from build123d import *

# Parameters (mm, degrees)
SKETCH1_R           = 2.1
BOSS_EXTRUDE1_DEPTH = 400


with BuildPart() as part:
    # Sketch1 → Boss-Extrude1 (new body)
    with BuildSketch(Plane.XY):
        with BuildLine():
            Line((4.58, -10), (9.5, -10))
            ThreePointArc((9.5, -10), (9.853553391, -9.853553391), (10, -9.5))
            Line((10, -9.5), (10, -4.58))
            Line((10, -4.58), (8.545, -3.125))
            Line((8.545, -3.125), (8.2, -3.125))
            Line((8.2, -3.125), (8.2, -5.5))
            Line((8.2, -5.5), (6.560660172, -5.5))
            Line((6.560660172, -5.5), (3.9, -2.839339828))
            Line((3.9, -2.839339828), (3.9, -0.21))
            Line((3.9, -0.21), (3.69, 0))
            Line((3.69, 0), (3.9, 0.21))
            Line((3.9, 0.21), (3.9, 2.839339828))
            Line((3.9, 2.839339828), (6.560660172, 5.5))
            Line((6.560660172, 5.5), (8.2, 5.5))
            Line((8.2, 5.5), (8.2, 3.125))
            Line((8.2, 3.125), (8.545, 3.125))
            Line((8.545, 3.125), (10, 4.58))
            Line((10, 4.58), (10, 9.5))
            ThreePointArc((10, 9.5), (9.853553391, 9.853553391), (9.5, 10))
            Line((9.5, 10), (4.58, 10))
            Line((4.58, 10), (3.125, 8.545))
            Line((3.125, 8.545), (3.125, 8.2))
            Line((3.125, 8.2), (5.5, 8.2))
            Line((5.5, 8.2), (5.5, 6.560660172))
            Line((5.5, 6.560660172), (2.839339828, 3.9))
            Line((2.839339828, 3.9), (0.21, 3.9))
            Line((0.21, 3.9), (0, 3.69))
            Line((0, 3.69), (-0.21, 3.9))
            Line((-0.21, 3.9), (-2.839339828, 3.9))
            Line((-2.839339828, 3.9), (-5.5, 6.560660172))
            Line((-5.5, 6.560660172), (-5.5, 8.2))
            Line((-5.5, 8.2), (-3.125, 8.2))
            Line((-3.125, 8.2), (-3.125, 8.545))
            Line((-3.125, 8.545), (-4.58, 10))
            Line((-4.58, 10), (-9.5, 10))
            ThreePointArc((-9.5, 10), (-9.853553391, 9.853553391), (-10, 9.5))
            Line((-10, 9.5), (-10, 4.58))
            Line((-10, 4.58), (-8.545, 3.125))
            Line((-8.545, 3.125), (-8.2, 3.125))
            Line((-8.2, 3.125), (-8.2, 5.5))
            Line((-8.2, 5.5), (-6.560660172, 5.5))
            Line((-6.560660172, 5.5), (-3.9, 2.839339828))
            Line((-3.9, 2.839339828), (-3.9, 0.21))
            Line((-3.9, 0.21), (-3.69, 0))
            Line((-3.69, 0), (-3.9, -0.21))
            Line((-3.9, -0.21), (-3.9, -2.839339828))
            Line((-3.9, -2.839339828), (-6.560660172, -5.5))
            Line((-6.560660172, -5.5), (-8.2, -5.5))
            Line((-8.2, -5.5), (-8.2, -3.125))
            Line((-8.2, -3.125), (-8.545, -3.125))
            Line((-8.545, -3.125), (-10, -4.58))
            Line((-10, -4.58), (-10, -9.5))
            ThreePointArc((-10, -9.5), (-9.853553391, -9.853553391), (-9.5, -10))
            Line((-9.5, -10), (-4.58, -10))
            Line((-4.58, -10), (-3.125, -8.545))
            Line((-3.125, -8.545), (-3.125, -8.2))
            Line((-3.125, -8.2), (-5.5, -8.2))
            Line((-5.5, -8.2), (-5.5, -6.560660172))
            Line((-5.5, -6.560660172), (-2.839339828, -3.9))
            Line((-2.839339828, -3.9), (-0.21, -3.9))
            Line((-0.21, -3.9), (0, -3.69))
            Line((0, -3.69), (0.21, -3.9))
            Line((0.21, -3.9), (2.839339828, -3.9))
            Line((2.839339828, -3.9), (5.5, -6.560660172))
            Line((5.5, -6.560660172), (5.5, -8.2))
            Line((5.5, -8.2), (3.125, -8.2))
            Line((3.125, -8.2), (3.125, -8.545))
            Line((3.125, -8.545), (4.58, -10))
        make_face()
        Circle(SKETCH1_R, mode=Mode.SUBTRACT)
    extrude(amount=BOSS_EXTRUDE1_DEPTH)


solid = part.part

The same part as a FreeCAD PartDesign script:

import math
import FreeCAD as App
import Part
import Sketcher
from FreeCAD import Vector
Q = App.Units.Quantity

doc = App.newDocument("Part")
body = doc.addObject("PartDesign::Body", "Body")

sketch1 = body.newObject("Sketcher::SketchObject", "Sketch")
sketch1.AttachmentSupport = (doc.getObject("XY_Plane"), [""])
sketch1.MapMode = "FlatFace"
sketch1.addGeometry(Part.LineSegment(Vector(4.58, -10, 0), Vector(9.5, -10, 0)), False)
sketch1.addGeometry(Part.ArcOfCircle(Part.Circle(Vector(9.5, -9.5, 0), Vector(0, 0, 1), 0.5), math.radians(-90), math.radians(0)), False)
sketch1.addGeometry(Part.LineSegment(Vector(10, -9.5, 0), Vector(10, -4.58, 0)), False)
sketch1.addGeometry(Part.LineSegment(Vector(10, -4.58, 0), Vector(8.54, -3.12, 0)), False)
sketch1.addGeometry(Part.LineSegment(Vector(8.54, -3.12, 0), Vector(8.2, -3.12, 0)), False)
sketch1.addGeometry(Part.LineSegment(Vector(8.2, -3.12, 0), Vector(8.2, -5.5, 0)), False)
sketch1.addGeometry(Part.LineSegment(Vector(8.2, -5.5, 0), Vector(6.56, -5.5, 0)), False)
sketch1.addGeometry(Part.LineSegment(Vector(6.56, -5.5, 0), Vector(3.9, -2.84, 0)), False)
sketch1.addGeometry(Part.LineSegment(Vector(3.9, -2.84, 0), Vector(3.9, -0.21, 0)), False)
sketch1.addGeometry(Part.LineSegment(Vector(3.9, -0.21, 0), Vector(3.69, 0, 0)), False)
sketch1.addGeometry(Part.LineSegment(Vector(3.69, 0, 0), Vector(3.9, 0.21, 0)), False)
sketch1.addGeometry(Part.LineSegment(Vector(3.9, 0.21, 0), Vector(3.9, 2.84, 0)), False)
sketch1.addGeometry(Part.LineSegment(Vector(3.9, 2.84, 0), Vector(6.56, 5.5, 0)), False)
sketch1.addGeometry(Part.LineSegment(Vector(6.56, 5.5, 0), Vector(8.2, 5.5, 0)), False)
sketch1.addGeometry(Part.LineSegment(Vector(8.2, 5.5, 0), Vector(8.2, 3.12, 0)), False)
sketch1.addGeometry(Part.LineSegment(Vector(8.2, 3.12, 0), Vector(8.54, 3.12, 0)), False)
sketch1.addGeometry(Part.LineSegment(Vector(8.54, 3.12, 0), Vector(10, 4.58, 0)), False)
sketch1.addGeometry(Part.LineSegment(Vector(10, 4.58, 0), Vector(10, 9.5, 0)), False)
sketch1.addGeometry(Part.ArcOfCircle(Part.Circle(Vector(9.5, 9.5, 0), Vector(0, 0, 1), 0.5), math.radians(0), math.radians(90)), False)
sketch1.addGeometry(Part.LineSegment(Vector(9.5, 10, 0), Vector(4.58, 10, 0)), False)
sketch1.addGeometry(Part.LineSegment(Vector(4.58, 10, 0), Vector(3.12, 8.54, 0)), False)
sketch1.addGeometry(Part.LineSegment(Vector(3.12, 8.54, 0), Vector(3.12, 8.2, 0)), False)
sketch1.addGeometry(Part.LineSegment(Vector(3.12, 8.2, 0), Vector(5.5, 8.2, 0)), False)
sketch1.addGeometry(Part.LineSegment(Vector(5.5, 8.2, 0), Vector(5.5, 6.56, 0)), False)
sketch1.addGeometry(Part.LineSegment(Vector(5.5, 6.56, 0), Vector(2.84, 3.9, 0)), False)
sketch1.addGeometry(Part.LineSegment(Vector(2.84, 3.9, 0), Vector(0.21, 3.9, 0)), False)
sketch1.addGeometry(Part.LineSegment(Vector(0.21, 3.9, 0), Vector(0, 3.69, 0)), False)
sketch1.addGeometry(Part.LineSegment(Vector(0, 3.69, 0), Vector(-0.21, 3.9, 0)), False)
sketch1.addGeometry(Part.LineSegment(Vector(-0.21, 3.9, 0), Vector(-2.84, 3.9, 0)), False)
sketch1.addGeometry(Part.LineSegment(Vector(-2.84, 3.9, 0), Vector(-5.5, 6.56, 0)), False)
sketch1.addGeometry(Part.LineSegment(Vector(-5.5, 6.56, 0), Vector(-5.5, 8.2, 0)), False)
sketch1.addGeometry(Part.LineSegment(Vector(-5.5, 8.2, 0), Vector(-3.12, 8.2, 0)), False)
sketch1.addGeometry(Part.LineSegment(Vector(-3.12, 8.2, 0), Vector(-3.12, 8.54, 0)), False)
sketch1.addGeometry(Part.LineSegment(Vector(-3.12, 8.54, 0), Vector(-4.58, 10, 0)), False)
sketch1.addGeometry(Part.LineSegment(Vector(-4.58, 10, 0), Vector(-9.5, 10, 0)), False)
sketch1.addGeometry(Part.ArcOfCircle(Part.Circle(Vector(-9.5, 9.5, 0), Vector(0, 0, 1), 0.5), math.radians(90), math.radians(180)), False)
sketch1.addGeometry(Part.LineSegment(Vector(-10, 9.5, 0), Vector(-10, 4.58, 0)), False)
sketch1.addGeometry(Part.LineSegment(Vector(-10, 4.58, 0), Vector(-8.54, 3.12, 0)), False)
sketch1.addGeometry(Part.LineSegment(Vector(-8.54, 3.12, 0), Vector(-8.2, 3.12, 0)), False)
sketch1.addGeometry(Part.LineSegment(Vector(-8.2, 3.12, 0), Vector(-8.2, 5.5, 0)), False)
sketch1.addGeometry(Part.LineSegment(Vector(-8.2, 5.5, 0), Vector(-6.56, 5.5, 0)), False)
sketch1.addGeometry(Part.LineSegment(Vector(-6.56, 5.5, 0), Vector(-3.9, 2.84, 0)), False)
sketch1.addGeometry(Part.LineSegment(Vector(-3.9, 2.84, 0), Vector(-3.9, 0.21, 0)), False)
sketch1.addGeometry(Part.LineSegment(Vector(-3.9, 0.21, 0), Vector(-3.69, 0, 0)), False)
sketch1.addGeometry(Part.LineSegment(Vector(-3.69, 0, 0), Vector(-3.9, -0.21, 0)), False)
sketch1.addGeometry(Part.LineSegment(Vector(-3.9, -0.21, 0), Vector(-3.9, -2.84, 0)), False)
sketch1.addGeometry(Part.LineSegment(Vector(-3.9, -2.84, 0), Vector(-6.56, -5.5, 0)), False)
sketch1.addGeometry(Part.LineSegment(Vector(-6.56, -5.5, 0), Vector(-8.2, -5.5, 0)), False)
sketch1.addGeometry(Part.LineSegment(Vector(-8.2, -5.5, 0), Vector(-8.2, -3.12, 0)), False)
sketch1.addGeometry(Part.LineSegment(Vector(-8.2, -3.12, 0), Vector(-8.54, -3.12, 0)), False)
sketch1.addGeometry(Part.LineSegment(Vector(-8.54, -3.12, 0), Vector(-10, -4.58, 0)), False)
sketch1.addGeometry(Part.LineSegment(Vector(-10, -4.58, 0), Vector(-10, -9.5, 0)), False)
sketch1.addGeometry(Part.ArcOfCircle(Part.Circle(Vector(-9.5, -9.5, 0), Vector(0, 0, 1), 0.5), math.radians(180), math.radians(270)), False)
sketch1.addGeometry(Part.LineSegment(Vector(-9.5, -10, 0), Vector(-4.58, -10, 0)), False)
sketch1.addGeometry(Part.LineSegment(Vector(-4.58, -10, 0), Vector(-3.12, -8.54, 0)), False)
sketch1.addGeometry(Part.LineSegment(Vector(-3.12, -8.54, 0), Vector(-3.12, -8.2, 0)), False)
sketch1.addGeometry(Part.LineSegment(Vector(-3.12, -8.2, 0), Vector(-5.5, -8.2, 0)), False)
sketch1.addGeometry(Part.LineSegment(Vector(-5.5, -8.2, 0), Vector(-5.5, -6.56, 0)), False)
sketch1.addGeometry(Part.LineSegment(Vector(-5.5, -6.56, 0), Vector(-2.84, -3.9, 0)), False)
sketch1.addGeometry(Part.LineSegment(Vector(-2.84, -3.9, 0), Vector(-0.21, -3.9, 0)), False)
sketch1.addGeometry(Part.LineSegment(Vector(-0.21, -3.9, 0), Vector(0, -3.69, 0)), False)
sketch1.addGeometry(Part.LineSegment(Vector(0, -3.69, 0), Vector(0.21, -3.9, 0)), False)
sketch1.addGeometry(Part.LineSegment(Vector(0.21, -3.9, 0), Vector(2.84, -3.9, 0)), False)
sketch1.addGeometry(Part.LineSegment(Vector(2.84, -3.9, 0), Vector(5.5, -6.56, 0)), False)
sketch1.addGeometry(Part.LineSegment(Vector(5.5, -6.56, 0), Vector(5.5, -8.2, 0)), False)
sketch1.addGeometry(Part.LineSegment(Vector(5.5, -8.2, 0), Vector(3.12, -8.2, 0)), False)
sketch1.addGeometry(Part.LineSegment(Vector(3.12, -8.2, 0), Vector(3.12, -8.54, 0)), False)
sketch1.addGeometry(Part.LineSegment(Vector(3.12, -8.54, 0), Vector(4.58, -10, 0)), False)
sketch1.addGeometry(Part.Circle(Vector(0, 0, 0), Vector(0, 0, 1), 2.1), False)
sketch1.addConstraint(Sketcher.Constraint("Tangent", 0, 2, 1, 1))
sketch1.addConstraint(Sketcher.Constraint("Tangent", 1, 2, 2, 1))
sketch1.addConstraint(Sketcher.Constraint("Coincident", 2, 2, 3, 1))
sketch1.addConstraint(Sketcher.Constraint("Coincident", 3, 2, 4, 1))
sketch1.addConstraint(Sketcher.Constraint("Coincident", 4, 2, 5, 1))
sketch1.addConstraint(Sketcher.Constraint("Coincident", 5, 2, 6, 1))
sketch1.addConstraint(Sketcher.Constraint("Coincident", 6, 2, 7, 1))
sketch1.addConstraint(Sketcher.Constraint("Coincident", 7, 2, 8, 1))
sketch1.addConstraint(Sketcher.Constraint("Coincident", 8, 2, 9, 1))
sketch1.addConstraint(Sketcher.Constraint("Coincident", 9, 2, 10, 1))
sketch1.addConstraint(Sketcher.Constraint("Coincident", 10, 2, 11, 1))
sketch1.addConstraint(Sketcher.Constraint("Coincident", 11, 2, 12, 1))
sketch1.addConstraint(Sketcher.Constraint("Coincident", 12, 2, 13, 1))
sketch1.addConstraint(Sketcher.Constraint("Coincident", 13, 2, 14, 1))
sketch1.addConstraint(Sketcher.Constraint("Coincident", 14, 2, 15, 1))
sketch1.addConstraint(Sketcher.Constraint("Coincident", 15, 2, 16, 1))
sketch1.addConstraint(Sketcher.Constraint("Coincident", 16, 2, 17, 1))
sketch1.addConstraint(Sketcher.Constraint("Tangent", 17, 2, 18, 1))
sketch1.addConstraint(Sketcher.Constraint("Tangent", 18, 2, 19, 1))
sketch1.addConstraint(Sketcher.Constraint("Coincident", 19, 2, 20, 1))
sketch1.addConstraint(Sketcher.Constraint("Coincident", 20, 2, 21, 1))
sketch1.addConstraint(Sketcher.Constraint("Coincident", 21, 2, 22, 1))
sketch1.addConstraint(Sketcher.Constraint("Coincident", 22, 2, 23, 1))
sketch1.addConstraint(Sketcher.Constraint("Coincident", 23, 2, 24, 1))
sketch1.addConstraint(Sketcher.Constraint("Coincident", 24, 2, 25, 1))
sketch1.addConstraint(Sketcher.Constraint("Coincident", 25, 2, 26, 1))
sketch1.addConstraint(Sketcher.Constraint("Coincident", 26, 2, 27, 1))
sketch1.addConstraint(Sketcher.Constraint("Coincident", 27, 2, 28, 1))
sketch1.addConstraint(Sketcher.Constraint("Coincident", 28, 2, 29, 1))
sketch1.addConstraint(Sketcher.Constraint("Coincident", 29, 2, 30, 1))
sketch1.addConstraint(Sketcher.Constraint("Coincident", 30, 2, 31, 1))
sketch1.addConstraint(Sketcher.Constraint("Coincident", 31, 2, 32, 1))
sketch1.addConstraint(Sketcher.Constraint("Coincident", 32, 2, 33, 1))
sketch1.addConstraint(Sketcher.Constraint("Coincident", 33, 2, 34, 1))
sketch1.addConstraint(Sketcher.Constraint("Tangent", 34, 2, 35, 1))
sketch1.addConstraint(Sketcher.Constraint("Tangent", 35, 2, 36, 1))
sketch1.addConstraint(Sketcher.Constraint("Coincident", 36, 2, 37, 1))
sketch1.addConstraint(Sketcher.Constraint("Coincident", 37, 2, 38, 1))
sketch1.addConstraint(Sketcher.Constraint("Coincident", 38, 2, 39, 1))
sketch1.addConstraint(Sketcher.Constraint("Coincident", 39, 2, 40, 1))
sketch1.addConstraint(Sketcher.Constraint("Coincident", 40, 2, 41, 1))
sketch1.addConstraint(Sketcher.Constraint("Coincident", 41, 2, 42, 1))
sketch1.addConstraint(Sketcher.Constraint("Coincident", 42, 2, 43, 1))
sketch1.addConstraint(Sketcher.Constraint("Coincident", 43, 2, 44, 1))
sketch1.addConstraint(Sketcher.Constraint("Coincident", 44, 2, 45, 1))
sketch1.addConstraint(Sketcher.Constraint("Coincident", 45, 2, 46, 1))
sketch1.addConstraint(Sketcher.Constraint("Coincident", 46, 2, 47, 1))
sketch1.addConstraint(Sketcher.Constraint("Coincident", 47, 2, 48, 1))
sketch1.addConstraint(Sketcher.Constraint("Coincident", 48, 2, 49, 1))
sketch1.addConstraint(Sketcher.Constraint("Coincident", 49, 2, 50, 1))
sketch1.addConstraint(Sketcher.Constraint("Coincident", 50, 2, 51, 1))
sketch1.addConstraint(Sketcher.Constraint("Tangent", 51, 2, 52, 1))
sketch1.addConstraint(Sketcher.Constraint("Tangent", 52, 2, 53, 1))
sketch1.addConstraint(Sketcher.Constraint("Coincident", 53, 2, 54, 1))
sketch1.addConstraint(Sketcher.Constraint("Coincident", 54, 2, 55, 1))
sketch1.addConstraint(Sketcher.Constraint("Coincident", 55, 2, 56, 1))
sketch1.addConstraint(Sketcher.Constraint("Coincident", 56, 2, 57, 1))
sketch1.addConstraint(Sketcher.Constraint("Coincident", 57, 2, 58, 1))
sketch1.addConstraint(Sketcher.Constraint("Coincident", 58, 2, 59, 1))
sketch1.addConstraint(Sketcher.Constraint("Coincident", 59, 2, 60, 1))
sketch1.addConstraint(Sketcher.Constraint("Coincident", 60, 2, 61, 1))
sketch1.addConstraint(Sketcher.Constraint("Coincident", 61, 2, 62, 1))
sketch1.addConstraint(Sketcher.Constraint("Coincident", 62, 2, 63, 1))
sketch1.addConstraint(Sketcher.Constraint("Coincident", 63, 2, 64, 1))
sketch1.addConstraint(Sketcher.Constraint("Coincident", 64, 2, 65, 1))
sketch1.addConstraint(Sketcher.Constraint("Coincident", 65, 2, 66, 1))
sketch1.addConstraint(Sketcher.Constraint("Coincident", 66, 2, 67, 1))
sketch1.addConstraint(Sketcher.Constraint("Coincident", 67, 2, 0, 1))
sketch1.addConstraint(Sketcher.Constraint("Horizontal", 0))
sketch1.addConstraint(Sketcher.Constraint("Vertical", 2))
sketch1.addConstraint(Sketcher.Constraint("Horizontal", 4))
sketch1.addConstraint(Sketcher.Constraint("Vertical", 5))
sketch1.addConstraint(Sketcher.Constraint("Horizontal", 6))
sketch1.addConstraint(Sketcher.Constraint("Vertical", 8))
sketch1.addConstraint(Sketcher.Constraint("Vertical", 11))
sketch1.addConstraint(Sketcher.Constraint("Horizontal", 13))
sketch1.addConstraint(Sketcher.Constraint("Vertical", 14))
sketch1.addConstraint(Sketcher.Constraint("Horizontal", 15))
sketch1.addConstraint(Sketcher.Constraint("Vertical", 17))
sketch1.addConstraint(Sketcher.Constraint("Horizontal", 19))
sketch1.addConstraint(Sketcher.Constraint("Vertical", 21))
sketch1.addConstraint(Sketcher.Constraint("Horizontal", 22))
sketch1.addConstraint(Sketcher.Constraint("Vertical", 23))
sketch1.addConstraint(Sketcher.Constraint("Horizontal", 25))
sketch1.addConstraint(Sketcher.Constraint("Horizontal", 28))
sketch1.addConstraint(Sketcher.Constraint("Vertical", 30))
sketch1.addConstraint(Sketcher.Constraint("Horizontal", 31))
sketch1.addConstraint(Sketcher.Constraint("Vertical", 32))
sketch1.addConstraint(Sketcher.Constraint("Horizontal", 34))
sketch1.addConstraint(Sketcher.Constraint("Vertical", 36))
sketch1.addConstraint(Sketcher.Constraint("Horizontal", 38))
sketch1.addConstraint(Sketcher.Constraint("Vertical", 39))
sketch1.addConstraint(Sketcher.Constraint("Horizontal", 40))
sketch1.addConstraint(Sketcher.Constraint("Vertical", 42))
sketch1.addConstraint(Sketcher.Constraint("Vertical", 45))
sketch1.addConstraint(Sketcher.Constraint("Horizontal", 47))
sketch1.addConstraint(Sketcher.Constraint("Vertical", 48))
sketch1.addConstraint(Sketcher.Constraint("Horizontal", 49))
sketch1.addConstraint(Sketcher.Constraint("Vertical", 51))
sketch1.addConstraint(Sketcher.Constraint("Horizontal", 53))
sketch1.addConstraint(Sketcher.Constraint("Vertical", 55))
sketch1.addConstraint(Sketcher.Constraint("Horizontal", 56))
sketch1.addConstraint(Sketcher.Constraint("Vertical", 57))
sketch1.addConstraint(Sketcher.Constraint("Horizontal", 59))
sketch1.addConstraint(Sketcher.Constraint("Horizontal", 62))
sketch1.addConstraint(Sketcher.Constraint("Vertical", 64))
sketch1.addConstraint(Sketcher.Constraint("Horizontal", 65))
sketch1.addConstraint(Sketcher.Constraint("Vertical", 66))
sketch1.addConstraint(Sketcher.Constraint("Coincident", 68, 3, -1, 1))
sketch1.addConstraint(Sketcher.Constraint("Equal", 1, 18))
sketch1.addConstraint(Sketcher.Constraint("Equal", 18, 35))
sketch1.addConstraint(Sketcher.Constraint("Equal", 35, 52))
sketch1.addConstraint(Sketcher.Constraint("Symmetric", 1, 3, 35, 3, -1, 1))
sketch1.addConstraint(Sketcher.Constraint("Symmetric", 18, 3, 52, 3, -1, 1))
sketch1.addConstraint(Sketcher.Constraint("Symmetric", 3, 2, 37, 2, -1, 1))
sketch1.addConstraint(Sketcher.Constraint("Symmetric", 5, 2, 39, 2, -1, 1))
sketch1.addConstraint(Sketcher.Constraint("Symmetric", 7, 2, 41, 2, -1, 1))
sketch1.addConstraint(Sketcher.Constraint("Symmetric", 9, 2, 43, 2, -1, 1))
sketch1.addConstraint(Sketcher.Constraint("Symmetric", 10, 2, 44, 2, -1, 1))
sketch1.addConstraint(Sketcher.Constraint("Symmetric", 12, 2, 46, 2, -1, 1))
sketch1.addConstraint(Sketcher.Constraint("Symmetric", 14, 2, 48, 2, -1, 1))
sketch1.addConstraint(Sketcher.Constraint("Symmetric", 20, 2, 54, 2, -1, 1))
sketch1.addConstraint(Sketcher.Constraint("Symmetric", 22, 2, 56, 2, -1, 1))
sketch1.addConstraint(Sketcher.Constraint("Symmetric", 24, 2, 58, 2, -1, 1))
sketch1.addConstraint(Sketcher.Constraint("Symmetric", 26, 2, 60, 2, -1, 1))
sketch1.addConstraint(Sketcher.Constraint("Symmetric", 27, 2, 61, 2, -1, 1))
sketch1.addConstraint(Sketcher.Constraint("Symmetric", 29, 2, 63, 2, -1, 1))
sketch1.addConstraint(Sketcher.Constraint("Symmetric", 31, 2, 65, 2, -1, 1))
sketch1.addConstraint(Sketcher.Constraint("Symmetric", 18, 3, 35, 3, -2))
sketch1.addConstraint(Sketcher.Constraint("Symmetric", 25, 2, 27, 2, -2))
sketch1.addConstraint(Sketcher.Constraint("Symmetric", 23, 2, 29, 2, -2))
sketch1.addConstraint(Sketcher.Constraint("Symmetric", 21, 2, 31, 2, -2))
sketch1.addConstraint(Sketcher.Constraint("Symmetric", 15, 2, 37, 2, -2))
sketch1.addConstraint(Sketcher.Constraint("Symmetric", 13, 2, 39, 2, -2))
sketch1.addConstraint(Sketcher.Constraint("Symmetric", 11, 2, 41, 2, -2))
sketch1.addConstraint(Sketcher.Constraint("PointOnObject", 9, 2, -1))
sketch1.addConstraint(Sketcher.Constraint("PointOnObject", 26, 2, -2))
sketch1.addConstraint(Sketcher.Constraint("Parallel", 3, 7))
sketch1.addConstraint(Sketcher.Constraint("Parallel", 7, 9))
sketch1.addConstraint(Sketcher.Constraint("Perpendicular", 9, 10))
sketch1.addConstraint(Sketcher.Constraint("Parallel", 10, 12))
sketch1.addConstraint(Sketcher.Constraint("Parallel", 12, 16))
sketch1.addConstraint(Sketcher.Constraint("Parallel", 16, 20))
sketch1.addConstraint(Sketcher.Constraint("Parallel", 20, 24))
sketch1.addConstraint(Sketcher.Constraint("Parallel", 24, 26))
sketch1.addConstraint(Sketcher.Constraint("Perpendicular", 26, 27))
sketch1.addConstraint(Sketcher.Constraint("Parallel", 27, 29))
sketch1.addConstraint(Sketcher.Constraint("Parallel", 29, 33))
sketch1.addConstraint(Sketcher.Constraint("Parallel", 33, 37))
sketch1.addConstraint(Sketcher.Constraint("Parallel", 37, 41))
sketch1.addConstraint(Sketcher.Constraint("Parallel", 41, 43))
sketch1.addConstraint(Sketcher.Constraint("Parallel", 44, 46))
sketch1.addConstraint(Sketcher.Constraint("Parallel", 46, 50))
sketch1.addConstraint(Sketcher.Constraint("Parallel", 50, 54))
sketch1.addConstraint(Sketcher.Constraint("Parallel", 54, 58))
sketch1.addConstraint(Sketcher.Constraint("Parallel", 58, 60))
sketch1.addConstraint(Sketcher.Constraint("Parallel", 61, 63))
sketch1.addConstraint(Sketcher.Constraint("Parallel", 63, 67))
sketch1.addConstraint(Sketcher.Constraint("Horizontal", 20, 2, 32, 2))
sketch1.addConstraint(Sketcher.Constraint("Horizontal", 2, 2, 50, 2))
sketch1.addConstraint(Sketcher.Constraint("Horizontal", 54, 2, 66, 2))
sketch1.addConstraint(Sketcher.Constraint("Equal", 53, 2))
sketch1.addConstraint(Sketcher.Constraint("Equal", 65, 5))
sketch1.addConstraint(Sketcher.Constraint("Equal", 62, 8))
sketch1.addConstraint(Sketcher.Constraint("Equal", 49, 21))
sketch1.addConstraint(Sketcher.Constraint("Equal", 47, 23))
sketch1.addConstraint(Sketcher.Constraint("Equal", 16, 20))
sketch1.addConstraint(Sketcher.Constraint("Equal", 12, 24))
sketch1.addConstraint(Sketcher.Constraint("Equal", 10, 26))
sketch1.addConstraint(Sketcher.Constraint("Diameter", 68, Q("4.2 mm")))
sketch1.addConstraint(Sketcher.Constraint("Radius", 1, Q("0.5 mm")))
sketch1.addConstraint(Sketcher.Constraint("DistanceY", 0, 2, -1, 1, Q("10 mm")))
sketch1.addConstraint(Sketcher.Constraint("DistanceX", 0, 1, 0, 2, Q("4.92 mm")))
sketch1.addConstraint(Sketcher.Constraint("DistanceX", -1, 1, 4, 2, Q("8.2 mm")))
sketch1.addConstraint(Sketcher.Constraint("DistanceY", 5, 2, -1, 1, Q("5.5 mm")))
sketch1.addConstraint(Sketcher.Constraint("DistanceX", -1, 1, 7, 2, Q("3.9 mm")))
sketch1.addConstraint(Sketcher.Constraint("DistanceX", 4, 2, 4, 1, Q("0.345 mm")))
sketch1.addConstraint(Sketcher.Constraint("DistanceY", 8, 2, -1, 1, Q("0.21 mm")))
sketch1.addConstraint(Sketcher.Constraint("DistanceX", 6, 2, 6, 1, Q("1.63934 mm")))
pad1 = body.newObject("PartDesign::Pad", "Pad")
pad1.Profile = sketch1
pad1.Length = 400

doc.recompute()
